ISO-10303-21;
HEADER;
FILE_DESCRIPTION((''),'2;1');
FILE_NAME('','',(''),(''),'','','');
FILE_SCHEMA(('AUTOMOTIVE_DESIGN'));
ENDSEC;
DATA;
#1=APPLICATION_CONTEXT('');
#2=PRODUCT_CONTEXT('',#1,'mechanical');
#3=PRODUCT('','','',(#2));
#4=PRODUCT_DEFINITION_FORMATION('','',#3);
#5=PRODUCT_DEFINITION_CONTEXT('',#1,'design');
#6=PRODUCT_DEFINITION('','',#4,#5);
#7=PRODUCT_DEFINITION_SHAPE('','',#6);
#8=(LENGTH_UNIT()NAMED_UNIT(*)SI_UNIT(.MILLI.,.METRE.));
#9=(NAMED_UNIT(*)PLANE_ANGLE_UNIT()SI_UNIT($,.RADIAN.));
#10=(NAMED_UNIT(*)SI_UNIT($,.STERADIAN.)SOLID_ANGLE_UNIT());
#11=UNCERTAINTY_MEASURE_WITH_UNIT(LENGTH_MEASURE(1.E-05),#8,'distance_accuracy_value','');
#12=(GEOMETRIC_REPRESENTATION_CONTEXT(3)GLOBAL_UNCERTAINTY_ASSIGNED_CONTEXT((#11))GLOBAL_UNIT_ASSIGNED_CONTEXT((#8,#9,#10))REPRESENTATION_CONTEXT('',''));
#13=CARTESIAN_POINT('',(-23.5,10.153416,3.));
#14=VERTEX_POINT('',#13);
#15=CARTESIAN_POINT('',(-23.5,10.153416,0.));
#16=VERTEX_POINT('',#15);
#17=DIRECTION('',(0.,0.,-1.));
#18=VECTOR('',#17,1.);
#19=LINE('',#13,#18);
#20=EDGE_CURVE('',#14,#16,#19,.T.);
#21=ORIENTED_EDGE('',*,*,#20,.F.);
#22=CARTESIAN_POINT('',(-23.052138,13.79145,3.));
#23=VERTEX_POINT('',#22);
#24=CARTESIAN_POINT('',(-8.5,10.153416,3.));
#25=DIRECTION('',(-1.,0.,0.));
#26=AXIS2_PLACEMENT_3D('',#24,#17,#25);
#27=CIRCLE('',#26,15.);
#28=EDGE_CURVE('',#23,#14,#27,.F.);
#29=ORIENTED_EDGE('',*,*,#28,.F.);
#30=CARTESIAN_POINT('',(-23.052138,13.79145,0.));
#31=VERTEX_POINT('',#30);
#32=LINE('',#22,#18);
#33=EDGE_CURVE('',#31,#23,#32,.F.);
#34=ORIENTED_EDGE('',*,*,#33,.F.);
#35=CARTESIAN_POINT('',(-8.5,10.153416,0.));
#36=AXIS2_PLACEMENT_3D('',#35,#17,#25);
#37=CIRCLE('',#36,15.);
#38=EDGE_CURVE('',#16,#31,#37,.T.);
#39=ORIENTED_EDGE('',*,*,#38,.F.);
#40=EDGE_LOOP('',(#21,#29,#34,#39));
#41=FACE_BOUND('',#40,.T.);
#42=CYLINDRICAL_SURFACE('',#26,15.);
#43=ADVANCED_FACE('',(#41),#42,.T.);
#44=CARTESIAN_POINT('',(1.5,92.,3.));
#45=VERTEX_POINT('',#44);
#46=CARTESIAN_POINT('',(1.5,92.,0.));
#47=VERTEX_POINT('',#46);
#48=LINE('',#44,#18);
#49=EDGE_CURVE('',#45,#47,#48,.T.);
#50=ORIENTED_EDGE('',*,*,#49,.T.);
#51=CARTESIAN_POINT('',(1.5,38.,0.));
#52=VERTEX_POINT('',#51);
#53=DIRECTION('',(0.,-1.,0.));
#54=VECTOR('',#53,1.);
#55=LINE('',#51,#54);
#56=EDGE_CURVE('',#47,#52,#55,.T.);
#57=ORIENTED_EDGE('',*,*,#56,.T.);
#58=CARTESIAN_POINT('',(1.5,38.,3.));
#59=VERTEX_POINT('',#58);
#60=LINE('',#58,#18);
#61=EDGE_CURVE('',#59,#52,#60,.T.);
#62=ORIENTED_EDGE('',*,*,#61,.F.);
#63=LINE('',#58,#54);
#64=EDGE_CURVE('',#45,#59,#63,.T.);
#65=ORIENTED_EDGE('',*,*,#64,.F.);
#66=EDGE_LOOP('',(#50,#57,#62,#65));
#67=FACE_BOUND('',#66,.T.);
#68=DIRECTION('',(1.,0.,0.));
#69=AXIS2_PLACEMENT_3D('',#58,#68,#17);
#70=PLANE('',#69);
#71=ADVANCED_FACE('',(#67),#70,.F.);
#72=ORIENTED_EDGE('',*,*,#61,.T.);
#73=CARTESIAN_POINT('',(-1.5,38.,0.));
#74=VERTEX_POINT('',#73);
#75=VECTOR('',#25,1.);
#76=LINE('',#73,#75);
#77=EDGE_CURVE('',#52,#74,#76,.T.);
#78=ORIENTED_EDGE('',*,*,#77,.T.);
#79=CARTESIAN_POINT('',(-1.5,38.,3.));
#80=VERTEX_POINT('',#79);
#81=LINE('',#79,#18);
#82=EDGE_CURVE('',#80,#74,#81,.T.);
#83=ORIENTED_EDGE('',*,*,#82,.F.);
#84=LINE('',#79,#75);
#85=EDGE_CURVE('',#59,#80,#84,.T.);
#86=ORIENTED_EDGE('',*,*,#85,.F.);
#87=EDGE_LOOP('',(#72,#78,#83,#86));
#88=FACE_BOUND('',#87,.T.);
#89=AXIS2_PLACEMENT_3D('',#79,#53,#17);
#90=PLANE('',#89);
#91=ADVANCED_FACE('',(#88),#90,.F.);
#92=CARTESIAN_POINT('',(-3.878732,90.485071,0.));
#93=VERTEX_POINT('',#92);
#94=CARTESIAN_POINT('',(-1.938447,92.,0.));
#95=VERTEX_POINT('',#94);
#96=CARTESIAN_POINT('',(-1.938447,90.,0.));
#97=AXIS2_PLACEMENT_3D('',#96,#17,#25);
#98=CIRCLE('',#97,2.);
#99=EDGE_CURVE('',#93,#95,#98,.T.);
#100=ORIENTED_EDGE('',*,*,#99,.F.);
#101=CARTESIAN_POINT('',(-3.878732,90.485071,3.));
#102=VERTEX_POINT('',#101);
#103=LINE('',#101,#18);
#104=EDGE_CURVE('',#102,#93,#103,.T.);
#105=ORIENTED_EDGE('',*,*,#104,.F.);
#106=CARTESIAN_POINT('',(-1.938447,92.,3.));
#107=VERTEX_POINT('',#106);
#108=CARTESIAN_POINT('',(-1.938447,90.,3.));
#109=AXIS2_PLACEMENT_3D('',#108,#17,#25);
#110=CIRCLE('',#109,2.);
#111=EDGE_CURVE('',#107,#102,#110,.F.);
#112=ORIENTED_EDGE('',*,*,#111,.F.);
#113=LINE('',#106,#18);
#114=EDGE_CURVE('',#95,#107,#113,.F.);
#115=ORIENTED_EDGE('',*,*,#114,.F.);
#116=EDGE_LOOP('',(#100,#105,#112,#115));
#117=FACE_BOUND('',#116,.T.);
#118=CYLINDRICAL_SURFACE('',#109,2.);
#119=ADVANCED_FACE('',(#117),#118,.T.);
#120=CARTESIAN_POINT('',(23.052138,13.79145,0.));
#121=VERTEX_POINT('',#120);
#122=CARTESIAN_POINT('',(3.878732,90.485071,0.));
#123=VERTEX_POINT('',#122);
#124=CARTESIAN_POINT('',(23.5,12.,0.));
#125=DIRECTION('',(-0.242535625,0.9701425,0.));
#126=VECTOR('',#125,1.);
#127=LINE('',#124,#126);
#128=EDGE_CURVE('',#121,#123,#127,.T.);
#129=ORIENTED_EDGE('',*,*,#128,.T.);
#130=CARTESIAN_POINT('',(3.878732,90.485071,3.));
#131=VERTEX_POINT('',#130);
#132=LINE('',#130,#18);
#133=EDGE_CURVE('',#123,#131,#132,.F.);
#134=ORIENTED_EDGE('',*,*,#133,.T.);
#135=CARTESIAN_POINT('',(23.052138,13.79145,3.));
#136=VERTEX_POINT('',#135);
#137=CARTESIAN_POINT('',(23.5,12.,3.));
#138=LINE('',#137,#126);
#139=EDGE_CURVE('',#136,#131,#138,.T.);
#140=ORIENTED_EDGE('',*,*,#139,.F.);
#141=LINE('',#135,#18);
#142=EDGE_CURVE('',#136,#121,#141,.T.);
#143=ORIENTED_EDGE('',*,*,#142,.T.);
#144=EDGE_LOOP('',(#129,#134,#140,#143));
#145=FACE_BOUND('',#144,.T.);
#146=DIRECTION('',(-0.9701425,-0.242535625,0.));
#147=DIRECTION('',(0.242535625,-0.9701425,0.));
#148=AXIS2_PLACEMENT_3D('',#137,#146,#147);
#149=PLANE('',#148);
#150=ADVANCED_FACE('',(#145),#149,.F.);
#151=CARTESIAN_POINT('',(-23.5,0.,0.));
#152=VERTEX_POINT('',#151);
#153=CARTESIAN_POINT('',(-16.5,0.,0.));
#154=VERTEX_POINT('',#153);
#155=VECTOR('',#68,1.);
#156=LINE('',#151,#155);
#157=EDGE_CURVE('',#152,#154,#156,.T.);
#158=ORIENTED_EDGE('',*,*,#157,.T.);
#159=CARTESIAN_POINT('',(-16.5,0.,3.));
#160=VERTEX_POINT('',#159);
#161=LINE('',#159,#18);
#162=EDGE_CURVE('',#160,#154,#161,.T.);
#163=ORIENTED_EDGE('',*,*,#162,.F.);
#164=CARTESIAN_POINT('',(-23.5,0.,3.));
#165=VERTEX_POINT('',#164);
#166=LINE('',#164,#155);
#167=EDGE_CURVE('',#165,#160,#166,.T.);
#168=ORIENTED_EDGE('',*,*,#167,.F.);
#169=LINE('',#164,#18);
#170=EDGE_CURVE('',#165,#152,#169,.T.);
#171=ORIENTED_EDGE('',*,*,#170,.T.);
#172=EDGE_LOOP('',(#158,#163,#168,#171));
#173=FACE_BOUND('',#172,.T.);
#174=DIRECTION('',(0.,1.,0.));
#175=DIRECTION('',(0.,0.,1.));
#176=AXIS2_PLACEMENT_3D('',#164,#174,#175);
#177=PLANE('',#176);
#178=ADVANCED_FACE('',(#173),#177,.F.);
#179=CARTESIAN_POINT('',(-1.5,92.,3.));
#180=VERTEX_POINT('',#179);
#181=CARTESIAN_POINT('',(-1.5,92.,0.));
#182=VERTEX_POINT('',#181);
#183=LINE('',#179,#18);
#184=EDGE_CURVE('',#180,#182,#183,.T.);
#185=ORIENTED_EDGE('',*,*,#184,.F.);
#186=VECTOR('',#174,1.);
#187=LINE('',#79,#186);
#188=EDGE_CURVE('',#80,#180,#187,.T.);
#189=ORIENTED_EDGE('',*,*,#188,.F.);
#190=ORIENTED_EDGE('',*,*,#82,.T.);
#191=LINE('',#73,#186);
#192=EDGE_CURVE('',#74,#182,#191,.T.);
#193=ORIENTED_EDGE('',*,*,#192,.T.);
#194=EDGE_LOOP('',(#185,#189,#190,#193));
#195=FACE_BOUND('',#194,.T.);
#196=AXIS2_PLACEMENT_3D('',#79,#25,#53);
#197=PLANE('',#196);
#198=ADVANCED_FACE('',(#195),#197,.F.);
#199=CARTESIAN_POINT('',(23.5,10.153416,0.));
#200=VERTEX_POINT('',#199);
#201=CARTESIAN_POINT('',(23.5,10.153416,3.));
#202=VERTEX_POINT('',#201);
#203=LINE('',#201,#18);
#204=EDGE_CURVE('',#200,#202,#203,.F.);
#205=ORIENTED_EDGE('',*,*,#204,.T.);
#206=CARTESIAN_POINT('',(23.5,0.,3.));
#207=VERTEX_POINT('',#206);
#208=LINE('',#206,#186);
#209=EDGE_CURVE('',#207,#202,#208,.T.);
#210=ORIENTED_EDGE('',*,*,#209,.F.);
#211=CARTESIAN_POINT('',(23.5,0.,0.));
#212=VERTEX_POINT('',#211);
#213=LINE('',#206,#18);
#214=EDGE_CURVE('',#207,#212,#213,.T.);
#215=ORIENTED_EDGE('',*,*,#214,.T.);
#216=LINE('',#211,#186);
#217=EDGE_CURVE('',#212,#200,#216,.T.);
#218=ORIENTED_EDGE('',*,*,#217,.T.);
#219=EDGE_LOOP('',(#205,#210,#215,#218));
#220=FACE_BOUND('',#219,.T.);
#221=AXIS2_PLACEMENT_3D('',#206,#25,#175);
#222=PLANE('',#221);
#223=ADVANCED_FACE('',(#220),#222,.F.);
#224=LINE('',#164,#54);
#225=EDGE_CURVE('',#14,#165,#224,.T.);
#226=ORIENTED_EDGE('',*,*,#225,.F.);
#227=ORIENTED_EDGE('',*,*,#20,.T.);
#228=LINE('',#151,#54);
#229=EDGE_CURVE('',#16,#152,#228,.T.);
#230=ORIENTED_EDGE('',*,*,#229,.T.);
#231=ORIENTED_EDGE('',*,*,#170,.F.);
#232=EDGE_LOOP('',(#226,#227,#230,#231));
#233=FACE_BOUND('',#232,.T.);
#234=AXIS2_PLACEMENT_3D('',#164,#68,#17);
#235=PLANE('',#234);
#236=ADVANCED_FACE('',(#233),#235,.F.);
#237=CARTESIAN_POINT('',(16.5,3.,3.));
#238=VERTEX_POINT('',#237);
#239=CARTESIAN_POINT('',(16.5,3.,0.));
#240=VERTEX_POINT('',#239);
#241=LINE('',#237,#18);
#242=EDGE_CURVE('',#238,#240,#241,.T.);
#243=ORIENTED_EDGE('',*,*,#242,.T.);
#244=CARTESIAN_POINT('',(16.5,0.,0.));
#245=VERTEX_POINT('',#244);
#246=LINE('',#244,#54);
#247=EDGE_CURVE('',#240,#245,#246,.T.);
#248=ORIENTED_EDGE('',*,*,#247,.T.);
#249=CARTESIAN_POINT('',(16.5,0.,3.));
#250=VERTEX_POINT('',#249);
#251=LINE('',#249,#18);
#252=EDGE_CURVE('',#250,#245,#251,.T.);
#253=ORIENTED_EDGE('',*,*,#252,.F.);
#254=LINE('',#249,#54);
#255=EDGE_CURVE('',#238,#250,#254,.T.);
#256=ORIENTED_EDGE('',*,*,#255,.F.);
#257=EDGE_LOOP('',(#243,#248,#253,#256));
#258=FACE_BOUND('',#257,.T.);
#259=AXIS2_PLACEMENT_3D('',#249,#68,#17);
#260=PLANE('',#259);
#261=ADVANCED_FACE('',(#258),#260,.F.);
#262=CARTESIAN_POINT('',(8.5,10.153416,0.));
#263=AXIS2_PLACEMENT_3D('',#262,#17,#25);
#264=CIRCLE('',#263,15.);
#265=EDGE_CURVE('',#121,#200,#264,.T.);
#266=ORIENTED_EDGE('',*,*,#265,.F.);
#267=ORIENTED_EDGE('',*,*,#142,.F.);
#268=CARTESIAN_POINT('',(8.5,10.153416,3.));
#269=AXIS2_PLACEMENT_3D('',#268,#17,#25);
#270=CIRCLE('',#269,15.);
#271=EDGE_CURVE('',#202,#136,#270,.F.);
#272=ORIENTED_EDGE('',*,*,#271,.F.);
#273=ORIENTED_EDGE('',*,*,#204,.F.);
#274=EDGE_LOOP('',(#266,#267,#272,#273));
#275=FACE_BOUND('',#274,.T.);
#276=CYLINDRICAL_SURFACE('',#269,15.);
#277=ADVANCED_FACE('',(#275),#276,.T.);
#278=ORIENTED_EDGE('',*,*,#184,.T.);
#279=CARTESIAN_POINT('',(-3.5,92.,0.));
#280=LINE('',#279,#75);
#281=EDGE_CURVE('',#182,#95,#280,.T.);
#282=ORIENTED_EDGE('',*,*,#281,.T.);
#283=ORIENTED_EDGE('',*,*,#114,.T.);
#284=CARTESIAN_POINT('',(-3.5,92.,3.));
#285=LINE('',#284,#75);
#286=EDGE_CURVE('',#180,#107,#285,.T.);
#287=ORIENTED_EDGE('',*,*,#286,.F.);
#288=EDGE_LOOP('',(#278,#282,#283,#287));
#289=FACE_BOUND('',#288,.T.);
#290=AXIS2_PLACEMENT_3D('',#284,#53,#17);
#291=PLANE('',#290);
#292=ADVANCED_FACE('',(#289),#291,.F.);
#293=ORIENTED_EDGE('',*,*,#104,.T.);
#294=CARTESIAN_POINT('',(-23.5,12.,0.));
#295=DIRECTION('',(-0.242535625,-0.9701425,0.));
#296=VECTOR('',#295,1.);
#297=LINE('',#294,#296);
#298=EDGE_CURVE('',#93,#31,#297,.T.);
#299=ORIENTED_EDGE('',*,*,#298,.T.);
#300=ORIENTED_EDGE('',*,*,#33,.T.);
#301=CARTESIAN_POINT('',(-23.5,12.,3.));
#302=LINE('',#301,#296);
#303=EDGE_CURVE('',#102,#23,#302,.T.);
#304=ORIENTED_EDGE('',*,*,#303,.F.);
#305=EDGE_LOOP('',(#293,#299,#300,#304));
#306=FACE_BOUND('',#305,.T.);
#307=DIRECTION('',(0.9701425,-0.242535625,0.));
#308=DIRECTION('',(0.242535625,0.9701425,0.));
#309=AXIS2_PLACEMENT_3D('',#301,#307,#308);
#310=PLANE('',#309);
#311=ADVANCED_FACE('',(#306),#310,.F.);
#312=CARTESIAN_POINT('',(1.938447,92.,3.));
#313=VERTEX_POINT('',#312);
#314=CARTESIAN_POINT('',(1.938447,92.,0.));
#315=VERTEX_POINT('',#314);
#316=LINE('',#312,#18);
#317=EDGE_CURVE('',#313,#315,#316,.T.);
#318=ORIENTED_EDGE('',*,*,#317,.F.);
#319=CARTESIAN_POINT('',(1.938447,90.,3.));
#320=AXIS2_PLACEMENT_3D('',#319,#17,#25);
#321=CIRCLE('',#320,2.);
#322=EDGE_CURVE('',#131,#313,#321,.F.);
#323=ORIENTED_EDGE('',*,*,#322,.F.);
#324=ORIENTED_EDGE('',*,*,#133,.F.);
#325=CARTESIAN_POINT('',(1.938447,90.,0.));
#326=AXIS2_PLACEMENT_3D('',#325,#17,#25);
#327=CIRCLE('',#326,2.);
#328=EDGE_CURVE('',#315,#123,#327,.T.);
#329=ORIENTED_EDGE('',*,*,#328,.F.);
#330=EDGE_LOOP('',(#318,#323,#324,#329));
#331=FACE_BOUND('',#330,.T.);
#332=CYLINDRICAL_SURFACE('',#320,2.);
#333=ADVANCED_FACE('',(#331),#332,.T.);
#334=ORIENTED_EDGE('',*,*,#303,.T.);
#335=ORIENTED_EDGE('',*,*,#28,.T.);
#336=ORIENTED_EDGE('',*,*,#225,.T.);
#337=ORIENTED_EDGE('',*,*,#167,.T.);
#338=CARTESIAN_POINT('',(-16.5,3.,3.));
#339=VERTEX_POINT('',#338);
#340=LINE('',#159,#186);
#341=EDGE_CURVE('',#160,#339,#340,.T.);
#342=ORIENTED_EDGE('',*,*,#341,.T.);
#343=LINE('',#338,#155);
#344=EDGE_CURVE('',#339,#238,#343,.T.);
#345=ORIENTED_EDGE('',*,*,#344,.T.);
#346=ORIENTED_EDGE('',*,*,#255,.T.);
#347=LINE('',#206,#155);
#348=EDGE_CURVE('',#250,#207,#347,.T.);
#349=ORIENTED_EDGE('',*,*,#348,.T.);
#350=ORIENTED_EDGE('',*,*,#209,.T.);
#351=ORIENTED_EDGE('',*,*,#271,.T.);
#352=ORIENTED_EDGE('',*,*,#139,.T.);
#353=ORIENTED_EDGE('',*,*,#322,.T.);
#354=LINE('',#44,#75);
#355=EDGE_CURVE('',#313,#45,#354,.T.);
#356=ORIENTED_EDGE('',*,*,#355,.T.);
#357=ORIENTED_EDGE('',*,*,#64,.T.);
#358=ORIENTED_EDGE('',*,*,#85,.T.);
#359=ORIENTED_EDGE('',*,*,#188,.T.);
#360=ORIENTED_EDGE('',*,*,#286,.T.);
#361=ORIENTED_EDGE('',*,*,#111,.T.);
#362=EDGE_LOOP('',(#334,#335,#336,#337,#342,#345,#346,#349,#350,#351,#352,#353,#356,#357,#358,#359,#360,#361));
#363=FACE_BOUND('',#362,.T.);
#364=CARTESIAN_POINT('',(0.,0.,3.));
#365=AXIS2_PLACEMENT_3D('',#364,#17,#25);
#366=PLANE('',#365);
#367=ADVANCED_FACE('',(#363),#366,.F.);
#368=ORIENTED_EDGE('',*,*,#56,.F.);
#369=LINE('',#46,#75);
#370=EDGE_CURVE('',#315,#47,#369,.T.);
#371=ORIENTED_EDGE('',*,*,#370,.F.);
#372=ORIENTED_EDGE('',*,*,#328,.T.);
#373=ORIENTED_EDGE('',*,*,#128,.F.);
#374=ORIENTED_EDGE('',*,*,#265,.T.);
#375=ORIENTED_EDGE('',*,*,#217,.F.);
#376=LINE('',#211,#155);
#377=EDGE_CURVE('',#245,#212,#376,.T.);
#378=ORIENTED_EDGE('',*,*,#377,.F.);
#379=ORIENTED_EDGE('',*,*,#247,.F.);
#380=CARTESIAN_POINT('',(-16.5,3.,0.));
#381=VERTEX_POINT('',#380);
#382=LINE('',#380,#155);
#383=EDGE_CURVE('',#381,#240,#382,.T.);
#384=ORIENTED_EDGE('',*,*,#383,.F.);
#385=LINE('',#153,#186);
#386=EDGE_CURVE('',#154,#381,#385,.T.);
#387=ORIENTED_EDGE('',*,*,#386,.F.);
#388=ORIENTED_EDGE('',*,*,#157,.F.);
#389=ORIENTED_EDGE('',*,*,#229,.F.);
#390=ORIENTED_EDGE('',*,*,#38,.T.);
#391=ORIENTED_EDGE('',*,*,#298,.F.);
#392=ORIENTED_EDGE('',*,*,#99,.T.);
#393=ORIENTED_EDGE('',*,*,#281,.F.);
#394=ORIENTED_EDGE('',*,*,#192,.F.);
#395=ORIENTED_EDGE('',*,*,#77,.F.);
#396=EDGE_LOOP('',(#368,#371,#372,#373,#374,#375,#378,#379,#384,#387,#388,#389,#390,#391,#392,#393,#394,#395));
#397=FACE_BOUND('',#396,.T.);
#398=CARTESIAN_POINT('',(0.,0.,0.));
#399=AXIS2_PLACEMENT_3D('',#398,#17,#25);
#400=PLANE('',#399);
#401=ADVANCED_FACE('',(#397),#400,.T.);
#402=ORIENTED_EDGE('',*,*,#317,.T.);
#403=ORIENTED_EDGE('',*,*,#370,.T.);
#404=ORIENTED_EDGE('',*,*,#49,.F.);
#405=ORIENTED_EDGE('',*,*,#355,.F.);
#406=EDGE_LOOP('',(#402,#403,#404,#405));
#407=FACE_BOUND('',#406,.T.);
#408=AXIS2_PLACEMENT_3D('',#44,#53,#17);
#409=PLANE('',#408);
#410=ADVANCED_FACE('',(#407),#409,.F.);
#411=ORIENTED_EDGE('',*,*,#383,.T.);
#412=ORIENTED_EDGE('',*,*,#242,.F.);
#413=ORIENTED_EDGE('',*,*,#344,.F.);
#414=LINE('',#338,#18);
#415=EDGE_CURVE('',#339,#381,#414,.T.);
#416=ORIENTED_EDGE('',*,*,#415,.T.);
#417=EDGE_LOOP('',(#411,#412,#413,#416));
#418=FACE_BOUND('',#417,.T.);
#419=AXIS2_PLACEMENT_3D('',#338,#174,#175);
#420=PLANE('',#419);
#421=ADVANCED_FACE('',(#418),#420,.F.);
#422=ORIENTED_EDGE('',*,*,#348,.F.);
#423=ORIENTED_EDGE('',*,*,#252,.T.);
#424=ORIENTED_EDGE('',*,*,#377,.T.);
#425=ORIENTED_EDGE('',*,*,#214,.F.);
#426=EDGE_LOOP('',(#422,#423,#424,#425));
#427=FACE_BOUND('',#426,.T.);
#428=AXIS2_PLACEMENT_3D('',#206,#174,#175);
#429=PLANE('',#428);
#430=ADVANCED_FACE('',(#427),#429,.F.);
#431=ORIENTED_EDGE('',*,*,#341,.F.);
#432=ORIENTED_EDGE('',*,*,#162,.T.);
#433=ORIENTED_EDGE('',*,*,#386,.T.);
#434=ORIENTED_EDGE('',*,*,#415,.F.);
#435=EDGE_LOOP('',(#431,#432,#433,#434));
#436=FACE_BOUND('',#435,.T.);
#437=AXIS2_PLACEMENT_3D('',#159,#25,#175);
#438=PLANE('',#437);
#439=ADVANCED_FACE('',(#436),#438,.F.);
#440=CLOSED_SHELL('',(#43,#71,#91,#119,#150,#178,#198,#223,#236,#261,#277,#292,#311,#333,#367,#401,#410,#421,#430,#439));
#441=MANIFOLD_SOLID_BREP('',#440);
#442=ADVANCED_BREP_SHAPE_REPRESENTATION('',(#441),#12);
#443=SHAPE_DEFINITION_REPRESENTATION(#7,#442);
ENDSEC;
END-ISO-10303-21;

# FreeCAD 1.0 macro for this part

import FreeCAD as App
import Part
import Sketcher
from FreeCAD import Vector
Q = App.Units.Quantity


def edges_at(feature, points):
    """Names of the edges that pass closest to the given points."""
    edges = feature.Shape.Edges
    near = lambda p: min(range(len(edges)), key=lambda i: edges[i].distToShape(Part.Vertex(*p))[0])
    return sorted({f"Edge{near(p) + 1}" for p in points})

doc = App.newDocument("Part")
body = doc.addObject("PartDesign::Body", "Body")

sketch1 = body.newObject("Sketcher::SketchObject", "Sketch")
sketch1.AttachmentSupport = (doc.getObject("XY_Plane"), [""])
sketch1.MapMode = "FlatFace"
sketch1.addGeometry(Part.LineSegment(Vector(-23.5, 0, 0), Vector(-16.5, 0, 0)), False)
sketch1.addGeometry(Part.LineSegment(Vector(-16.5, 0, 0), Vector(-16.5, 3, 0)), False)
sketch1.addGeometry(Part.LineSegment(Vector(-16.5, 3, 0), Vector(16.5, 3, 0)), False)
sketch1.addGeometry(Part.LineSegment(Vector(16.5, 3, 0), Vector(16.5, 0, 0)), False)
sketch1.addGeometry(Part.LineSegment(Vector(16.5, 0, 0), Vector(23.5, 0, 0)), False)
sketch1.addGeometry(Part.LineSegment(Vector(23.5, 0, 0), Vector(23.5, 12, 0)), False)
sketch1.addGeometry(Part.LineSegment(Vector(23.5, 12, 0), Vector(3.5, 92, 0)), False)
sketch1.addGeometry(Part.LineSegment(Vector(3.5, 92, 0), Vector(1.5, 92, 0)), False)
sketch1.addGeometry(Part.LineSegment(Vector(1.5, 92, 0), Vector(1.5, 38, 0)), False)
sketch1.addGeometry(Part.LineSegment(Vector(1.5, 38, 0), Vector(-1.5, 38, 0)), False)
sketch1.addGeometry(Part.LineSegment(Vector(-1.5, 38, 0), Vector(-1.5, 92, 0)), False)
sketch1.addGeometry(Part.LineSegment(Vector(-1.5, 92, 0), Vector(-3.5, 92, 0)), False)
sketch1.addGeometry(Part.LineSegment(Vector(-3.5, 92, 0), Vector(-23.5, 12, 0)), False)
sketch1.addGeometry(Part.LineSegment(Vector(-23.5, 12, 0), Vector(-23.5, 0, 0)), False)
sketch1.addConstraint(Sketcher.Constraint("Coincident", 0, 2, 1, 1))
sketch1.addConstraint(Sketcher.Constraint("Coincident", 1, 2, 2, 1))
sketch1.addConstraint(Sketcher.Constraint("Coincident", 2, 2, 3, 1))
sketch1.addConstraint(Sketcher.Constraint("Coincident", 3, 2, 4, 1))
sketch1.addConstraint(Sketcher.Constraint("Coincident", 4, 2, 5, 1))
sketch1.addConstraint(Sketcher.Constraint("Coincident", 5, 2, 6, 1))
sketch1.addConstraint(Sketcher.Constraint("Coincident", 6, 2, 7, 1))
sketch1.addConstraint(Sketcher.Constraint("Coincident", 7, 2, 8, 1))
sketch1.addConstraint(Sketcher.Constraint("Coincident", 8, 2, 9, 1))
sketch1.addConstraint(Sketcher.Constraint("Coincident", 9, 2, 10, 1))
sketch1.addConstraint(Sketcher.Constraint("Coincident", 10, 2, 11, 1))
sketch1.addConstraint(Sketcher.Constraint("Coincident", 11, 2, 12, 1))
sketch1.addConstraint(Sketcher.Constraint("Coincident", 12, 2, 13, 1))
sketch1.addConstraint(Sketcher.Constraint("Coincident", 13, 2, 0, 1))
sketch1.addConstraint(Sketcher.Constraint("Horizontal", 0))
sketch1.addConstraint(Sketcher.Constraint("Vertical", 1))
sketch1.addConstraint(Sketcher.Constraint("Horizontal", 2))
sketch1.addConstraint(Sketcher.Constraint("Vertical", 3))
sketch1.addConstraint(Sketcher.Constraint("Horizontal", 4))
sketch1.addConstraint(Sketcher.Constraint("Vertical", 5))
sketch1.addConstraint(Sketcher.Constraint("Horizontal", 7))
sketch1.addConstraint(Sketcher.Constraint("Vertical", 8))
sketch1.addConstraint(Sketcher.Constraint("Horizontal", 9))
sketch1.addConstraint(Sketcher.Constraint("Vertical", 10))
sketch1.addConstraint(Sketcher.Constraint("Horizontal", 11))
sketch1.addConstraint(Sketcher.Constraint("Vertical", 13))
sketch1.addConstraint(Sketcher.Constraint("Symmetric", 0, 2, 3, 2, -1, 1))
sketch1.addConstraint(Sketcher.Constraint("Symmetric", 7, 2, 10, 2, -2))
sketch1.addConstraint(Sketcher.Constraint("Symmetric", 5, 2, 12, 2, -2))
sketch1.addConstraint(Sketcher.Constraint("PointOnObject", 0, 2, -1))
sketch1.addConstraint(Sketcher.Constraint("Equal", 7, 11))
sketch1.addConstraint(Sketcher.Constraint("Equal", 9, 1))
sketch1.addConstraint(Sketcher.Constraint("DistanceX", 0, 1, 0, 2, Q("7 mm")))
sketch1.addConstraint(Sketcher.Constraint("DistanceX", 2, 1, 2, 2, Q("33 mm")))
sketch1.addConstraint(Sketcher.Constraint("DistanceX", 7, 2, 7, 1, Q("2 mm")))
sketch1.addConstraint(Sketcher.Constraint("DistanceX", 9, 2, 9, 1, Q("3 mm")))
sketch1.addConstraint(Sketcher.Constraint("DistanceY", 5, 1, 5, 2, Q("12 mm")))
sketch1.addConstraint(Sketcher.Constraint("DistanceY", 8, 2, 8, 1, Q("54 mm")))
sketch1.addConstraint(Sketcher.Constraint("DistanceY", -1, 1, 6, 2, Q("92 mm")))
pad1 = body.newObject("PartDesign::Pad", "Pad")
pad1.Profile = sketch1
pad1.Length = 3
doc.recompute()

fillet = body.newObject("PartDesign::Fillet", "Fillet")
fillet.Base = (pad1, edges_at(pad1, [(-23.5, 12, 1.5), (23.5, 12, 1.5)]))
fillet.Radius = 15
doc.recompute()

fillet2 = body.newObject("PartDesign::Fillet", "Fillet001")
fillet2.Base = (fillet, edges_at(fillet, [(-3.5, 92, 1.5), (3.5, 92, 1.5)]))
fillet2.Radius = 2

doc.recompute()
